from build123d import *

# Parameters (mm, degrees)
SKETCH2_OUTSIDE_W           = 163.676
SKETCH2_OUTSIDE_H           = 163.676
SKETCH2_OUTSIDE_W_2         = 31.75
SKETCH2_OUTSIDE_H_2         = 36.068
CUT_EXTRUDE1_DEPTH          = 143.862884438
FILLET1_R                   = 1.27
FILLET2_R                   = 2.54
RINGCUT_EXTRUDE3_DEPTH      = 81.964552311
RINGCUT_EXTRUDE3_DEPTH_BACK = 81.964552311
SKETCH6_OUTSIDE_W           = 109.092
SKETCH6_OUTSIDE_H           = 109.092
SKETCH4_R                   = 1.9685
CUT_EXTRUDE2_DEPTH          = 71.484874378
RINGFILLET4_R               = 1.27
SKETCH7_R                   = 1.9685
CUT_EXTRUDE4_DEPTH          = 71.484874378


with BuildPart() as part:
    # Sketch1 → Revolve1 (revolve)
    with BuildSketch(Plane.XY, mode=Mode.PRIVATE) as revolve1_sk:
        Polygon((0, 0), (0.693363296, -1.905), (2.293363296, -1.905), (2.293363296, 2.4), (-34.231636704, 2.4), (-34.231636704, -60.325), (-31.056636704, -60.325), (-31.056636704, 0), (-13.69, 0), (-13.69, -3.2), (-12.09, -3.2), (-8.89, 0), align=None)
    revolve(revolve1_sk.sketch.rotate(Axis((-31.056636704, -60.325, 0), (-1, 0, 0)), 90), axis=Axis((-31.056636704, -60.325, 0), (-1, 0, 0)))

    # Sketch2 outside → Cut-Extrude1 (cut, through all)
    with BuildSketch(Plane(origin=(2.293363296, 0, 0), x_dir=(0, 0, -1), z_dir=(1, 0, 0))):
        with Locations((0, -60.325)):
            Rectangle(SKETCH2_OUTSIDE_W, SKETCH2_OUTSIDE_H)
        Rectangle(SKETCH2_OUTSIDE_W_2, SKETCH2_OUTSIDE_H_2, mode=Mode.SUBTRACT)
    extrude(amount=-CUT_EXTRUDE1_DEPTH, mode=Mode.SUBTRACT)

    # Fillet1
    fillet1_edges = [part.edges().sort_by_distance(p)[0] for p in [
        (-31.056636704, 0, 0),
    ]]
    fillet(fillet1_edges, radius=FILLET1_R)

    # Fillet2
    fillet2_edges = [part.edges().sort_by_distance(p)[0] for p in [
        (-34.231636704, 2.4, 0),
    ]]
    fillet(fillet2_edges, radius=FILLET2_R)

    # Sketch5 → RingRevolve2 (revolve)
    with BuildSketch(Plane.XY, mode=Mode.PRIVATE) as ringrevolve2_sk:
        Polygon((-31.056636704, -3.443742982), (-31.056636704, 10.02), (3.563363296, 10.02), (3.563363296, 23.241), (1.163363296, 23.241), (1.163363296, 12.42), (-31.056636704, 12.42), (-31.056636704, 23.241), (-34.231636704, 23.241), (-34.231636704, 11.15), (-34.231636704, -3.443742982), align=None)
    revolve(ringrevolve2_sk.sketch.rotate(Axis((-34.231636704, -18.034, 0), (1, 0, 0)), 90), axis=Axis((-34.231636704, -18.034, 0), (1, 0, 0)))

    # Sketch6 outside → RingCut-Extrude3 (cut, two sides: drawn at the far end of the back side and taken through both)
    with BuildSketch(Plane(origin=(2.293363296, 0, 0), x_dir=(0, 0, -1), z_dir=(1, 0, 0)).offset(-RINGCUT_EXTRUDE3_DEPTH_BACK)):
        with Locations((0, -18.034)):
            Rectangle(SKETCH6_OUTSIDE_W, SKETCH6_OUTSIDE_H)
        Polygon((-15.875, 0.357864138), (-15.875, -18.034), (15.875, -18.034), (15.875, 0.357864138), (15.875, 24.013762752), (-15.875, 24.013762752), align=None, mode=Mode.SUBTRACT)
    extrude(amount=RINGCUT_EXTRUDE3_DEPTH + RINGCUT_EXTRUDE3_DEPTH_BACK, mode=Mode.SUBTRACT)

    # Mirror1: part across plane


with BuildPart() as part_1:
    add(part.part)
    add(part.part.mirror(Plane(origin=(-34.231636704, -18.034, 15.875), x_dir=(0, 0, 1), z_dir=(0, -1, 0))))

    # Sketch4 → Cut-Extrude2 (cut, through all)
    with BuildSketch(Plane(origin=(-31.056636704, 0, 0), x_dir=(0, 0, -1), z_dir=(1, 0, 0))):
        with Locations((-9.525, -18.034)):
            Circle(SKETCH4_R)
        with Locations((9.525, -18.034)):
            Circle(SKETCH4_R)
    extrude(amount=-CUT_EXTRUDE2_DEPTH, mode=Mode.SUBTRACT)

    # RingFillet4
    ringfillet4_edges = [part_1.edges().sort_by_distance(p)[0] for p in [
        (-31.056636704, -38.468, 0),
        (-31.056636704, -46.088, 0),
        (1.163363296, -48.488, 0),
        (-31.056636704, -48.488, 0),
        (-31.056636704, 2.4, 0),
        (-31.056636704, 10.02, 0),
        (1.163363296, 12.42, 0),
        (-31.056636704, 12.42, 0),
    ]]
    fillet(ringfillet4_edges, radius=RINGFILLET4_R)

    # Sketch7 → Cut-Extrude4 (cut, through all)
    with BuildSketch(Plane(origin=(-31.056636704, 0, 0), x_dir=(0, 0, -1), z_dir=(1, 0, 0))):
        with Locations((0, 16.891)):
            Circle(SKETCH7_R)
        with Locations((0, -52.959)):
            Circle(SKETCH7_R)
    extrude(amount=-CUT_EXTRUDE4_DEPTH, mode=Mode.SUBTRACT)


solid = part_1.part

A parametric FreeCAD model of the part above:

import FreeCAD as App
import Part
import Sketcher
from FreeCAD import Vector
Q = App.Units.Quantity


def edges_at(feature, points):
    """Names of the edges that pass closest to the given points."""
    edges = feature.Shape.Edges
    near = lambda p: min(range(len(edges)), key=lambda i: edges[i].distToShape(Part.Vertex(*p))[0])
    return sorted({f"Edge{near(p) + 1}" for p in points})

doc = App.newDocument("Part")
params = doc.addObject("Spreadsheet::Sheet", "Params")
for row, (alias, value) in enumerate([
    ("sketch1_width", "0.35 in"),
    ("sketch1_width2", "0.125 in"),
    ("sketch1_height", "2.375 in"),
    ("revolution_angle", "360 deg"),
    ("sketch2_width", "1.42 in"),
    ("sketch2_height", "1.25 in"),
    ("fillet_radius", "0.05 in"),
    ("fillet2_radius", "0.1 in"),
    ("sketch3_width", "0.125 in"),
    ("revolution2_angle", "360 deg"),
    ("sketch4_height", "1.25 in"),
    ("sketch5_diameter", "0.155 in"),
    ("fillet3_radius", "0.05 in"),
    ("sketch6_diameter", "0.155 in"),
], start=1):
    params.set(f"A{row}", alias)
    params.set(f"B{row}", "=" + value)
    params.setAlias(f"B{row}", alias)

body = doc.addObject("PartDesign::Body", "Body")

# Sketch on XY plane
sketch1 = body.newObject("Sketcher::SketchObject", "Sketch")
sketch1.AttachmentSupport = (doc.getObject("XY_Plane"), [""])
sketch1.MapMode = "FlatFace"
sketch1.addGeometry([
    Part.LineSegment(Vector(0, 0, 0), Vector(0.7, -1.9, 0)),  # 0
    Part.LineSegment(Vector(0.7, -1.9, 0), Vector(2.3, -1.9, 0)),  # 1
    Part.LineSegment(Vector(2.3, -1.9, 0), Vector(2.3, 2.4, 0)),  # 2
    Part.LineSegment(Vector(2.3, 2.4, 0), Vector(-34.2, 2.4, 0)),  # 3
    Part.LineSegment(Vector(-34.2, 2.4, 0), Vector(-34.2, -60.3, 0)),  # 4
    Part.LineSegment(Vector(-34.2, -60.3, 0), Vector(-31.1, -60.3, 0)),  # 5
    Part.LineSegment(Vector(-31.1, -60.3, 0), Vector(-31.1, 0, 0)),  # 6
    Part.LineSegment(Vector(-31.1, 0, 0), Vector(-13.7, 0, 0)),  # 7
    Part.LineSegment(Vector(-13.7, 0, 0), Vector(-13.7, -3.2, 0)),  # 8
    Part.LineSegment(Vector(-13.7, -3.2, 0), Vector(-12.1, -3.2, 0)),  # 9
    Part.LineSegment(Vector(-12.1, -3.2, 0), Vector(-8.9, 0, 0)),  # 10
    Part.LineSegment(Vector(-8.9, 0, 0), Vector(0, 0, 0)),  # 11
], False)
sketch1.addGeometry(Part.LineSegment(Vector(2.3, -60.3, 0), Vector(-34.2, -60.3, 0)), True)  # axis
sketch1.addConstraint([
    Sketcher.Constraint("Coincident", 0, 2, 1, 1),
    Sketcher.Constraint("Coincident", 1, 2, 2, 1),
    Sketcher.Constraint("Coincident", 2, 2, 3, 1),
    Sketcher.Constraint("Coincident", 3, 2, 4, 1),
    Sketcher.Constraint("Coincident", 4, 2, 5, 1),
    Sketcher.Constraint("Coincident", 5, 2, 6, 1),
    Sketcher.Constraint("Coincident", 6, 2, 7, 1),
    Sketcher.Constraint("Coincident", 7, 2, 8, 1),
    Sketcher.Constraint("Coincident", 8, 2, 9, 1),
    Sketcher.Constraint("Coincident", 9, 2, 10, 1),
    Sketcher.Constraint("Coincident", 10, 2, 11, 1),
    Sketcher.Constraint("Coincident", 11, 2, 0, 1),
    Sketcher.Constraint("Horizontal", 1),
    Sketcher.Constraint("Vertical", 2),
    Sketcher.Constraint("Horizontal", 3),
    Sketcher.Constraint("Vertical", 4),
    Sketcher.Constraint("Horizontal", 5),
    Sketcher.Constraint("Vertical", 6),
    Sketcher.Constraint("Horizontal", 7),
    Sketcher.Constraint("Vertical", 8),
    Sketcher.Constraint("Horizontal", 9),
    Sketcher.Constraint("Horizontal", 11),
    Sketcher.Constraint("Horizontal", 12),
    Sketcher.Constraint("Coincident", 11, 2, -1, 1),
    Sketcher.Constraint("Coincident", 12, 2, 4, 2),
    Sketcher.Constraint("PointOnObject", 6, 2, -1),
    Sketcher.Constraint("Vertical", 2, 2, 12, 1),
    Sketcher.Constraint("Equal", 1, 9),
    Sketcher.Constraint("Angle", 0, Q("-70 deg")),
    Sketcher.Constraint("Angle", 10, Q("45 deg")),
    Sketcher.Constraint("DistanceX", 11, 1, 11, 2, Q("0.35 in")),
    Sketcher.Constraint("DistanceY", 4, 2, 0, 2, Q("2.3 in")),
    Sketcher.Constraint("DistanceX", 5, 1, 5, 2, Q("0.125 in")),
    Sketcher.Constraint("DistanceY", 6, 1, 6, 2, Q("2.375 in")),
    Sketcher.Constraint("DistanceX", 5, 2, 0, 2, Q("1.25 in")),
    Sketcher.Constraint("DistanceX", 1, 1, 1, 2, 1.6),
    Sketcher.Constraint("DistanceY", 2, 1, 2, 2, 4.305),
    Sketcher.Constraint("DistanceY", 8, 2, 8, 1, 3.2),
])
sketch1.setExpression("Constraints[30]", "Params.sketch1_width")
sketch1.setExpression("Constraints[32]", "Params.sketch1_width2")
sketch1.setExpression("Constraints[33]", "Params.sketch1_height")
revolution = body.newObject("PartDesign::Revolution", "Revolution")
revolution.Profile = sketch1
revolution.ReferenceAxis = (sketch1, ["Axis0"])
revolution.setExpression("Angle", "Params.revolution_angle")

# Sketch on YZ plane
sketch2 = body.newObject("Sketcher::SketchObject", "Sketch001")
sketch2.AttachmentSupport = (doc.getObject("YZ_Plane"), [""])
sketch2.MapMode = "FlatFace"
sketch2.AttachmentOffset = App.Placement(Vector(0, 0, 2.293363), App.Rotation())
sketch2.addGeometry([
    Part.LineSegment(Vector(22, 82, 0), Vector(-142, 82, 0)),  # 0
    Part.LineSegment(Vector(-142, 82, 0), Vector(-142, -82, 0)),  # 1
    Part.LineSegment(Vector(-142, -82, 0), Vector(22, -82, 0)),  # 2
    Part.LineSegment(Vector(22, -82, 0), Vector(22, 82, 0)),  # 3
    Part.LineSegment(Vector(-18, -16, 0), Vector(-18, 16, 0)),  # 4
    Part.LineSegment(Vector(-18, 16, 0), Vector(18, 16, 0)),  # 5
    Part.LineSegment(Vector(18, 16, 0), Vector(18, -16, 0)),  # 6
    Part.LineSegment(Vector(18, -16, 0), Vector(-18, -16, 0)),  # 7
], False)
sketch2.addConstraint([
    Sketcher.Constraint("Coincident", 0, 2, 1, 1),
    Sketcher.Constraint("Coincident", 1, 2, 2, 1),
    Sketcher.Constraint("Coincident", 2, 2, 3, 1),
    Sketcher.Constraint("Coincident", 3, 2, 0, 1),
    Sketcher.Constraint("Coincident", 4, 2, 5, 1),
    Sketcher.Constraint("Coincident", 5, 2, 6, 1),
    Sketcher.Constraint("Coincident", 6, 2, 7, 1),
    Sketcher.Constraint("Coincident", 7, 2, 4, 1),
    Sketcher.Constraint("Horizontal", 0),
    Sketcher.Constraint("Vertical", 1),
    Sketcher.Constraint("Horizontal", 2),
    Sketcher.Constraint("Vertical", 3),
    Sketcher.Constraint("Vertical", 4),
    Sketcher.Constraint("Horizontal", 5),
    Sketcher.Constraint("Vertical", 6),
    Sketcher.Constraint("Horizontal", 7),
    Sketcher.Constraint("Symmetric", 4, 2, 6, 2, -1, 1),
    Sketcher.Constraint("Equal", 2, 1),
    Sketcher.Constraint("DistanceX", 5, 1, 5, 2, Q("1.42 in")),
    Sketcher.Constraint("DistanceY", 4, 1, 4, 2, Q("1.25 in")),
    Sketcher.Constraint("DistanceX", 0, 2, 0, 1, 163.676),
    Sketcher.Constraint("DistanceX", 0, 2, -1, 1, 142.163),
    Sketcher.Constraint("DistanceY", -1, 1, 0, 2, 81.838),
])
sketch2.setExpression("Constraints[18]", "Params.sketch2_width")
sketch2.setExpression("Constraints[19]", "Params.sketch2_height")
pocket1 = body.newObject("PartDesign::Pocket", "Pocket")
pocket1.Profile = sketch2
pocket1.Type = "ThroughAll"
doc.recompute()

fillet = body.newObject("PartDesign::Fillet", "Fillet")
fillet.Base = (pocket1, edges_at(pocket1, [(-31.057, 0, 0)]))
fillet.setExpression("Radius", "Params.fillet_radius")
doc.recompute()

fillet2 = body.newObject("PartDesign::Fillet", "Fillet001")
fillet2.Base = (fillet, edges_at(fillet, [(-34.232, 2.4, 0)]))
fillet2.setExpression("Radius", "Params.fillet2_radius")

# Sketch on XY plane
sketch3 = body.newObject("Sketcher::SketchObject", "Sketch002")
sketch3.AttachmentSupport = (doc.getObject("XY_Plane"), [""])
sketch3.MapMode = "FlatFace"
sketch3.addGeometry([
    Part.LineSegment(Vector(-31.1, -3.4, 0), Vector(-31.1, 10, 0)),  # 0
    Part.LineSegment(Vector(-31.1, 10, 0), Vector(3.6, 10, 0)),  # 1
    Part.LineSegment(Vector(3.6, 10, 0), Vector(3.6, 23.2, 0)),  # 2
    Part.LineSegment(Vector(3.6, 23.2, 0), Vector(1.2, 23.2, 0)),  # 3
    Part.LineSegment(Vector(1.2, 23.2, 0), Vector(1.2, 12.4, 0)),  # 4
    Part.LineSegment(Vector(1.2, 12.4, 0), Vector(-31.1, 12.4, 0)),  # 5
    Part.LineSegment(Vector(-31.1, 12.4, 0), Vector(-31.1, 23.2, 0)),  # 6
    Part.LineSegment(Vector(-31.1, 23.2, 0), Vector(-34.2, 23.2, 0)),  # 7
    Part.LineSegment(Vector(-34.2, 23.2, 0), Vector(-34.2, -3.4, 0)),  # 8
    Part.LineSegment(Vector(-34.2, -3.4, 0), Vector(-31.1, -3.4, 0)),  # 9
], False)
sketch3.addGeometry(Part.LineSegment(Vector(-34.2, -18, 0), Vector(3.6, -18, 0)), True)  # axis
sketch3.addConstraint([
    Sketcher.Constraint("Coincident", 0, 2, 1, 1),
    Sketcher.Constraint("Coincident", 1, 2, 2, 1),
    Sketcher.Constraint("Coincident", 2, 2, 3, 1),
    Sketcher.Constraint("Coincident", 3, 2, 4, 1),
    Sketcher.Constraint("Coincident", 4, 2, 5, 1),
    Sketcher.Constraint("Coincident", 5, 2, 6, 1),
    Sketcher.Constraint("Coincident", 6, 2, 7, 1),
    Sketcher.Constraint("Coincident", 7, 2, 8, 1),
    Sketcher.Constraint("Coincident", 8, 2, 9, 1),
    Sketcher.Constraint("Coincident", 9, 2, 0, 1),
    Sketcher.Constraint("Vertical", 0),
    Sketcher.Constraint("Horizontal", 1),
    Sketcher.Constraint("Vertical", 2),
    Sketcher.Constraint("Horizontal", 3),
    Sketcher.Constraint("Vertical", 4),
    Sketcher.Constraint("Horizontal", 5),
    Sketcher.Constraint("Vertical", 6),
    Sketcher.Constraint("Horizontal", 7),
    Sketcher.Constraint("Vertical", 8),
    Sketcher.Constraint("Horizontal", 9),
    Sketcher.Constraint("Horizontal", 10),
    Sketcher.Constraint("Horizontal", 3, 2, 6, 2),
    Sketcher.Constraint("Vertical", 0, 2, 5, 2),
    Sketcher.Constraint("Vertical", 8, 2, 10, 1),
    Sketcher.Constraint("Vertical", 2, 2, 10, 2),
    Sketcher.Constraint("DistanceX", 7, 2, 7, 1, Q("0.125 in")),
    Sketcher.Constraint("DistanceY", 10, 1, -1, 1, Q("0.71 in")),
    Sketcher.Constraint("DistanceY", -1, 1, 2, 2, Q("0.915 in")),
    Sketcher.Constraint("DistanceX", 1, 1, 1, 2, 34.62),
    Sketcher.Constraint("DistanceX", 3, 2, 3, 1, 2.4),
    Sketcher.Constraint("DistanceY", 2, 1, 2, 2, 13.221),
    Sketcher.Constraint("DistanceY", 4, 2, 4, 1, 10.821),
    Sketcher.Constraint("DistanceY", 0, 1, 0, 2, 13.463743),
    Sketcher.Constraint("DistanceX", 0, 2, -1, 1, 31.056637),
])
sketch3.setExpression("Constraints[25]", "Params.sketch3_width")
revolution2 = body.newObject("PartDesign::Revolution", "Revolution001")
revolution2.Profile = sketch3
revolution2.ReferenceAxis = (sketch3, ["Axis0"])
revolution2.setExpression("Angle", "Params.revolution2_angle")

# Sketch on YZ plane
sketch4 = body.newObject("Sketcher::SketchObject", "Sketch003")
sketch4.AttachmentSupport = (doc.getObject("YZ_Plane"), [""])
sketch4.MapMode = "FlatFace"
sketch4.AttachmentOffset = App.Placement(Vector(0, 0, 2.293363), App.Rotation())
sketch4.addGeometry([
    Part.LineSegment(Vector(37, 55, 0), Vector(-73, 55, 0)),  # 0
    Part.LineSegment(Vector(-73, 55, 0), Vector(-73, -55, 0)),  # 1
    Part.LineSegment(Vector(-73, -55, 0), Vector(37, -55, 0)),  # 2
    Part.LineSegment(Vector(37, -55, 0), Vector(37, 55, 0)),  # 3
    Part.LineSegment(Vector(-18, 16, 0), Vector(24, 16, 0)),  # 4
    Part.LineSegment(Vector(24, 16, 0), Vector(24, -16, 0)),  # 5
    Part.LineSegment(Vector(24, -16, 0), Vector(-18, -16, 0)),  # 6
    Part.LineSegment(Vector(-18, -16, 0), Vector(-18, 16, 0)),  # 7
], False)
sketch4.addConstraint([
    Sketcher.Constraint("Coincident", 0, 2, 1, 1),
    Sketcher.Constraint("Coincident", 1, 2, 2, 1),
    Sketcher.Constraint("Coincident", 2, 2, 3, 1),
    Sketcher.Constraint("Coincident", 3, 2, 0, 1),
    Sketcher.Constraint("Coincident", 4, 2, 5, 1),
    Sketcher.Constraint("Coincident", 5, 2, 6, 1),
    Sketcher.Constraint("Coincident", 6, 2, 7, 1),
    Sketcher.Constraint("Coincident", 7, 2, 4, 1),
    Sketcher.Constraint("Horizontal", 0),
    Sketcher.Constraint("Vertical", 1),
    Sketcher.Constraint("Horizontal", 2),
    Sketcher.Constraint("Vertical", 3),
    Sketcher.Constraint("Horizontal", 4),
    Sketcher.Constraint("Vertical", 5),
    Sketcher.Constraint("Horizontal", 6),
    Sketcher.Constraint("Vertical", 7),
    Sketcher.Constraint("Equal", 2, 1),
    Sketcher.Constraint("DistanceY", 5, 2, 5, 1, Q("1.25 in")),
    Sketcher.Constraint("DistanceX", 6, 2, -1, 1, Q("0.71 in")),
    Sketcher.Constraint("DistanceY", -1, 1, 4, 2, Q("0.625 in")),
    Sketcher.Constraint("DistanceX", 0, 2, 0, 1, 109.092),
    Sketcher.Constraint("DistanceX", 0, 2, -1, 1, 72.58),
    Sketcher.Constraint("DistanceY", -1, 1, 0, 2, 54.546),
    Sketcher.Constraint("DistanceX", 4, 1, 4, 2, 42.047763),
])
sketch4.setExpression("Constraints[17]", "Params.sketch4_height")
pocket2 = body.newObject("PartDesign::Pocket", "Pocket001")
pocket2.Profile = sketch4
pocket2.Type = "ThroughAll"
pocket2.Midplane = True
body2 = doc.addObject("PartDesign::Body", "Body001")
doc.recompute()

body2.BaseFeature = body
doc.recompute()

mirroring = doc.addObject("Part::Mirroring", "Mirroring")
mirroring.Source = body
mirroring.Base = Vector(-34.231637, -18.034, 15.875)
mirroring.Normal = Vector(0, -1, 0)
body3 = doc.addObject("PartDesign::Body", "Body002")
body3.BaseFeature = mirroring
boolean = body2.newObject("PartDesign::Boolean", "Boolean")
boolean.Type = "Fuse"
boolean.addObjects([body3])
doc.recompute()

# Sketch on YZ plane
sketch5 = body2.newObject("Sketcher::SketchObject", "Sketch004")
sketch5.AttachmentSupport = (doc.getObject("YZ_Plane001"), [""])
sketch5.MapMode = "FlatFace"
sketch5.AttachmentOffset = App.Placement(Vector(0, 0, -31.056637), App.Rotation())
sketch5.addGeometry([
    Part.Circle(Vector(-18, 9.5, 0), Vector(0, 0, 1), 2),
    Part.Circle(Vector(-18, -9.5, 0), Vector(0, 0, 1), 2),
], False)
sketch5.addConstraint([
    Sketcher.Constraint("Equal", 0, 1),
    Sketcher.Constraint("Symmetric", 0, 3, 1, 3, -1),
    Sketcher.Constraint("Diameter", 0, Q("0.155 in")),
    Sketcher.Constraint("DistanceX", 0, 3, -1, 1, Q("0.71 in")),
    Sketcher.Constraint("DistanceY", 1, 3, 0, 3, Q("0.75 in")),
])
sketch5.setExpression("Constraints[2]", "Params.sketch5_diameter")
pocket3 = body2.newObject("PartDesign::Pocket", "Pocket002")
pocket3.Profile = sketch5
pocket3.Type = "ThroughAll"
doc.recompute()

fillet3 = body2.newObject("PartDesign::Fillet", "Fillet002")
fillet3.Base = (pocket3, edges_at(pocket3, [
    (-31.057, -38.468, 0),
    (-31.057, -46.088, 0),
    (1.163, -48.488, 0),
    (-31.057, -48.488, 0),
    (-31.057, 2.4, 0),
    (-31.057, 10.02, 0),
    (1.163, 12.42, 0),
    (-31.057, 12.42, 0),
]))
fillet3.setExpression("Radius", "Params.fillet3_radius")

# Sketch on YZ plane
sketch6 = body2.newObject("Sketcher::SketchObject", "Sketch005")
sketch6.AttachmentSupport = (doc.getObject("YZ_Plane001"), [""])
sketch6.MapMode = "FlatFace"
sketch6.AttachmentOffset = App.Placement(Vector(0, 0, -31.056637), App.Rotation())
sketch6.addGeometry([
    Part.Circle(Vector(16.9, 0, 0), Vector(0, 0, 1), 2),
    Part.Circle(Vector(-53, 0, 0), Vector(0, 0, 1), 2),
], False)
sketch6.addConstraint([
    Sketcher.Constraint("Equal", 0, 1),
    Sketcher.Constraint("PointOnObject", 0, 3, -1),
    Sketcher.Constraint("PointOnObject", 1, 3, -1),
    Sketcher.Constraint("Diameter", 0, Q("0.155 in")),
    Sketcher.Constraint("DistanceX", 1, 3, 0, 3, Q("2.75 in")),
    Sketcher.Constraint("DistanceX", -1, 1, 0, 3, Q("0.665 in")),
])
sketch6.setExpression("Constraints[3]", "Params.sketch6_diameter")
pocket4 = body2.newObject("PartDesign::Pocket", "Pocket003")
pocket4.Profile = sketch6
pocket4.Type = "ThroughAll"
mirroring.Visibility = False

doc.recompute()
